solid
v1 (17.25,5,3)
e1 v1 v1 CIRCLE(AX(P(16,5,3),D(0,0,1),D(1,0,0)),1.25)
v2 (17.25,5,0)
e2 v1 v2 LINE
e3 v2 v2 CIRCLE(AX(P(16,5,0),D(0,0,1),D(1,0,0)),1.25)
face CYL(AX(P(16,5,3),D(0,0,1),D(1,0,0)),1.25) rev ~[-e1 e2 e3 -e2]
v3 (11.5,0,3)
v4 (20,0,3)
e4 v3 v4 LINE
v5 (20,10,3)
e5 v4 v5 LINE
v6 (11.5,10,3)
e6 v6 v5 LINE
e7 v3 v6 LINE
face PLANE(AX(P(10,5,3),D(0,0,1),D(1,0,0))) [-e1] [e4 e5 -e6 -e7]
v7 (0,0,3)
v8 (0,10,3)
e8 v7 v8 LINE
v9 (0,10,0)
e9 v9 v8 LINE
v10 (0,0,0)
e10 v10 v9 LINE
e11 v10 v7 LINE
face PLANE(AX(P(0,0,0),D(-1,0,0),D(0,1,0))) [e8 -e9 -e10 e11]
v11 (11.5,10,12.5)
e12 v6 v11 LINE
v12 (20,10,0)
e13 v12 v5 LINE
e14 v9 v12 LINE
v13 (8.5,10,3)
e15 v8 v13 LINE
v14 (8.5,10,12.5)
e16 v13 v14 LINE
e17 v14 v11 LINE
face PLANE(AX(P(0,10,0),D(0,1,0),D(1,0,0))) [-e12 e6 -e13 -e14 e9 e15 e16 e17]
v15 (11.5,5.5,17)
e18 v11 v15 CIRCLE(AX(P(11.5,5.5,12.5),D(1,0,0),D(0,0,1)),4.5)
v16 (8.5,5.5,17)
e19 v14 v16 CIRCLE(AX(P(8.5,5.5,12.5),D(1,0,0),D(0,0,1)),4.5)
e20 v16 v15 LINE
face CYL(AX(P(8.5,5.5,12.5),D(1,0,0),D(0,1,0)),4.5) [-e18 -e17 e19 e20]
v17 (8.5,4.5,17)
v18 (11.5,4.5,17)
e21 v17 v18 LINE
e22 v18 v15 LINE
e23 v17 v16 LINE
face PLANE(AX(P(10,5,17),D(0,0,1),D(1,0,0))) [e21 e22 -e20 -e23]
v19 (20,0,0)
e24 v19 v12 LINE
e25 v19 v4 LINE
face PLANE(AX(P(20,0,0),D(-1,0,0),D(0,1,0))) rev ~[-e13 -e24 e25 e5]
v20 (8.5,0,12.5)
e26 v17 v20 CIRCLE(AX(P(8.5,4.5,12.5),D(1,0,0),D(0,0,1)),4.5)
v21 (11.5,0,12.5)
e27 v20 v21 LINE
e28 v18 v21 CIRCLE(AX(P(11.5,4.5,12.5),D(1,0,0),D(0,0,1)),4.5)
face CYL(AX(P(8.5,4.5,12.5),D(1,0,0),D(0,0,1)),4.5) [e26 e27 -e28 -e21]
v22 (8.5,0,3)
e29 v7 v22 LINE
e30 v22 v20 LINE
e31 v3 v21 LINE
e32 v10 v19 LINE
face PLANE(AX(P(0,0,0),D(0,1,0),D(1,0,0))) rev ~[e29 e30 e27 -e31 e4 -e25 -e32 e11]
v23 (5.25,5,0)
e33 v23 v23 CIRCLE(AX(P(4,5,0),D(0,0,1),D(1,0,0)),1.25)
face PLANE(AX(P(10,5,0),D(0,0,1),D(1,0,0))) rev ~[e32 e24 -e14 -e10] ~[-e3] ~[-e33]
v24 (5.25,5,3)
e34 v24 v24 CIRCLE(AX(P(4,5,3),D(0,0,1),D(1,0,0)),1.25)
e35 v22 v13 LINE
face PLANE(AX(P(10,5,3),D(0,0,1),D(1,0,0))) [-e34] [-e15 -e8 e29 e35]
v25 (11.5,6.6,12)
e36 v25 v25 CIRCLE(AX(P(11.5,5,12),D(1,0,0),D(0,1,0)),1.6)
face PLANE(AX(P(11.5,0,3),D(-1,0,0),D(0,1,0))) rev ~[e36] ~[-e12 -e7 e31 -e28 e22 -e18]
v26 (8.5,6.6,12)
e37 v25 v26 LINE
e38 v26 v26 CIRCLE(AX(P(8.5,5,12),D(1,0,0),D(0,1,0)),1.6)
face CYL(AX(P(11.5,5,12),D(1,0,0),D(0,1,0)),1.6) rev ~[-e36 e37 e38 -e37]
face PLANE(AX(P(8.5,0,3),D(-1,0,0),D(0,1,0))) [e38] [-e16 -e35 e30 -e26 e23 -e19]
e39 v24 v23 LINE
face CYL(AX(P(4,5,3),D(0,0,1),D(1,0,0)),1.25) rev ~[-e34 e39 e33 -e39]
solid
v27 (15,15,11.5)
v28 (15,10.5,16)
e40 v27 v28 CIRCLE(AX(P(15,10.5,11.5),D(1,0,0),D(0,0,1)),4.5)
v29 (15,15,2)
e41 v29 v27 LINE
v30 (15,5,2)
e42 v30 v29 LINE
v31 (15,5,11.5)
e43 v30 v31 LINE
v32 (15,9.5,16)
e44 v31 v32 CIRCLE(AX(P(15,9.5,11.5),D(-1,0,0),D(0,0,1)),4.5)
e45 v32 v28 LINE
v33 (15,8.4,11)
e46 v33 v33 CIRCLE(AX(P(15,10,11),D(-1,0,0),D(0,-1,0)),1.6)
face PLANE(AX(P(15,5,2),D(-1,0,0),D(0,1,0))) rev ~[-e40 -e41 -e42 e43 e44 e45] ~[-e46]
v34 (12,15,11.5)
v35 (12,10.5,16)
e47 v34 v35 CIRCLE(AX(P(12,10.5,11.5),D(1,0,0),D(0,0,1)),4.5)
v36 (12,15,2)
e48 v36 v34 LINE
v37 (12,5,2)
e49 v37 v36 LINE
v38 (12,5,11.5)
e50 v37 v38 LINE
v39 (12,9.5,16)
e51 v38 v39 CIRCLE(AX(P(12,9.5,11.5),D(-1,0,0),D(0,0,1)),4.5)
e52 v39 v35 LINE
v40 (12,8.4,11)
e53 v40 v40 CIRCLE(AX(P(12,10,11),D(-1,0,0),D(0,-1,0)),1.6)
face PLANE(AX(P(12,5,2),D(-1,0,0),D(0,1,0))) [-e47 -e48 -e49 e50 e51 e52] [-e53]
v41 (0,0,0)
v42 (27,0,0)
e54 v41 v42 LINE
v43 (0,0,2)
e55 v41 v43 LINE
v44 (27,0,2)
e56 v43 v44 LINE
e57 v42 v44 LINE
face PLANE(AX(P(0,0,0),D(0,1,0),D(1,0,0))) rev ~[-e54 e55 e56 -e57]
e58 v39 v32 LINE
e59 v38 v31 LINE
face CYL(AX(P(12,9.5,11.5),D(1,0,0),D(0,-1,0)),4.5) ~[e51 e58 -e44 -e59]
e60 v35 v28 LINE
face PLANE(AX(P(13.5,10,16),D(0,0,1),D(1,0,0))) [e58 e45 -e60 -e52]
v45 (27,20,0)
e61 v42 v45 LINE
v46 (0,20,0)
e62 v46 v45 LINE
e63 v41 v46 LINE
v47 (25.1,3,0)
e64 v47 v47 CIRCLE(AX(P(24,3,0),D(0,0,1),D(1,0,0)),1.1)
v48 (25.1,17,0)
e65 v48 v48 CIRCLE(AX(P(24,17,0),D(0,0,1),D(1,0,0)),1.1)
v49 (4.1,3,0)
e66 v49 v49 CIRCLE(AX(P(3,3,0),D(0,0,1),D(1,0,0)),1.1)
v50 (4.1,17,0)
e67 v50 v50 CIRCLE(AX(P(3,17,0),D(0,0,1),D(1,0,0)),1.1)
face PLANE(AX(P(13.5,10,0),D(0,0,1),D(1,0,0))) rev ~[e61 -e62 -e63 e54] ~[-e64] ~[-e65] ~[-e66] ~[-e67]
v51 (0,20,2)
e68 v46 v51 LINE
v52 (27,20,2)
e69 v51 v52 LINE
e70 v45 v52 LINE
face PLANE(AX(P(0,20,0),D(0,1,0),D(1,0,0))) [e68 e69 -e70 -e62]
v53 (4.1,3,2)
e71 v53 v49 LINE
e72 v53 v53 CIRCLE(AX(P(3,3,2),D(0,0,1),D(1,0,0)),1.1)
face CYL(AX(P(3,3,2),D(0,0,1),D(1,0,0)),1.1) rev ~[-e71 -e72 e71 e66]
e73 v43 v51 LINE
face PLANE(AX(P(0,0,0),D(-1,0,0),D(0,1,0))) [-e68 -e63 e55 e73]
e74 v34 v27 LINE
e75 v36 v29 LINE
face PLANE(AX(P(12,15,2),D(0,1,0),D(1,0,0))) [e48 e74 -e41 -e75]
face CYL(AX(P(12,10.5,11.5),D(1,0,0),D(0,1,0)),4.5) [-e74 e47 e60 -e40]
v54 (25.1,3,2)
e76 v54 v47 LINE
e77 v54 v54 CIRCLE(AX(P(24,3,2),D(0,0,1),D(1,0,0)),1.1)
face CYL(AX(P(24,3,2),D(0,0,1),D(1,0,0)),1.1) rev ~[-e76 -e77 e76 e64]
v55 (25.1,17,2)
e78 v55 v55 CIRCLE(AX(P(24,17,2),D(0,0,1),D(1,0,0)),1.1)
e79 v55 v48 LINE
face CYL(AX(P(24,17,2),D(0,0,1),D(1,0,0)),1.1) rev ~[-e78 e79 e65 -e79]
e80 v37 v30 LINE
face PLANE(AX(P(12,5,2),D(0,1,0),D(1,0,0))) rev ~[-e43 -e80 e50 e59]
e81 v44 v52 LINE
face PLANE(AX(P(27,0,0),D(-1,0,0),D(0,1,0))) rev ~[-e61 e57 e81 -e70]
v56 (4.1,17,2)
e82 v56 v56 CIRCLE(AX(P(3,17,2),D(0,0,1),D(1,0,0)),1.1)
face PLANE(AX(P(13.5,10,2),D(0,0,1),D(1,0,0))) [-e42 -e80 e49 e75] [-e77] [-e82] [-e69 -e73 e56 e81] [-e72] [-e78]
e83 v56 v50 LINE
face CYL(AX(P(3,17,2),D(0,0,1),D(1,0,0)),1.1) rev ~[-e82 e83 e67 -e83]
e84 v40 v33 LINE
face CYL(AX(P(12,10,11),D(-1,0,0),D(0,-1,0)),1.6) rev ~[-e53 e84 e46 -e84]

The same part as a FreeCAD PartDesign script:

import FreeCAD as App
import Part
import Sketcher

V = App.Vector
Q = App.Units.Quantity


def edges_at(feature, points):
    """Names of the edges that pass closest to the given points."""
    edges = feature.Shape.Edges
    near = lambda p: min(range(len(edges)), key=lambda i: edges[i].distToShape(Part.Vertex(*p))[0])
    return sorted({f"Edge{near(p) + 1}" for p in points})

doc = App.newDocument("Part")
body = doc.addObject("PartDesign::Body", "Body")

sketch1 = body.newObject("Sketcher::SketchObject", "Sketch")
sketch1.AttachmentSupport = (doc.getObject("XY_Plane"), [""])
sketch1.MapMode = "FlatFace"
sketch1.addGeometry(Part.LineSegment(V(0, 10, 0), V(0, 0, 0)), False)
sketch1.addGeometry(Part.LineSegment(V(0, 0, 0), V(20, 0, 0)), False)
sketch1.addGeometry(Part.LineSegment(V(20, 0, 0), V(20, 10, 0)), False)
sketch1.addGeometry(Part.LineSegment(V(20, 10, 0), V(0, 10, 0)), False)
sketch1.addConstraint(Sketcher.Constraint("Coincident", 0, 2, 1, 1))
sketch1.addConstraint(Sketcher.Constraint("Coincident", 1, 2, 2, 1))
sketch1.addConstraint(Sketcher.Constraint("Coincident", 2, 2, 3, 1))
sketch1.addConstraint(Sketcher.Constraint("Coincident", 3, 2, 0, 1))
sketch1.addConstraint(Sketcher.Constraint("Vertical", 0))
sketch1.addConstraint(Sketcher.Constraint("Horizontal", 1))
sketch1.addConstraint(Sketcher.Constraint("Vertical", 2))
sketch1.addConstraint(Sketcher.Constraint("Horizontal", 3))
sketch1.addConstraint(Sketcher.Constraint("Coincident", 0, 2, -1, 1))
sketch1.addConstraint(Sketcher.Constraint("DistanceX", 1, 1, 1, 2, Q("20 mm")))
sketch1.addConstraint(Sketcher.Constraint("DistanceY", 0, 2, 0, 1, Q("10 mm")))
pad1 = body.newObject("PartDesign::Pad", "Pad")
pad1.Profile = sketch1
pad1.Length = 3

sketch2 = body.newObject("Sketcher::SketchObject", "Sketch001")
sketch2.AttachmentSupport = (doc.getObject("XY_Plane"), [""])
sketch2.MapMode = "FlatFace"
sketch2.AttachmentOffset = App.Placement(V(0, 0, 3), App.Rotation())
sketch2.addGeometry(Part.LineSegment(V(8.5, 10, 0), V(8.5, 0, 0)), False)
sketch2.addGeometry(Part.LineSegment(V(8.5, 0, 0), V(11.5, 0, 0)), False)
sketch2.addGeometry(Part.LineSegment(V(11.5, 0, 0), V(11.5, 10, 0)), False)
sketch2.addGeometry(Part.LineSegment(V(11.5, 10, 0), V(8.5, 10, 0)), False)
sketch2.addConstraint(Sketcher.Constraint("Coincident", 0, 2, 1, 1))
sketch2.addConstraint(Sketcher.Constraint("Coincident", 1, 2, 2, 1))
sketch2.addConstraint(Sketcher.Constraint("Coincident", 2, 2, 3, 1))
sketch2.addConstraint(Sketcher.Constraint("Coincident", 3, 2, 0, 1))
sketch2.addConstraint(Sketcher.Constraint("Vertical", 0))
sketch2.addConstraint(Sketcher.Constraint("Horizontal", 1))
sketch2.addConstraint(Sketcher.Constraint("Vertical", 2))
sketch2.addConstraint(Sketcher.Constraint("Horizontal", 3))
sketch2.addConstraint(Sketcher.Constraint("PointOnObject", 0, 2, -1))
sketch2.addConstraint(Sketcher.Constraint("DistanceX", 1, 1, 1, 2, Q("3 mm")))
sketch2.addConstraint(Sketcher.Constraint("DistanceY", 0, 2, 0, 1, Q("10 mm")))
sketch2.addConstraint(Sketcher.Constraint("DistanceX", -1, 1, 0, 2, Q("8.5 mm")))
pad2 = body.newObject("PartDesign::Pad", "Pad001")
pad2.Profile = sketch2
pad2.Length = 14

sketch3 = body.newObject("Sketcher::SketchObject", "Sketch002")
sketch3.AttachmentSupport = (doc.getObject("XY_Plane"), [""])
sketch3.MapMode = "FlatFace"
sketch3.AttachmentOffset = App.Placement(V(0, 0, 3), App.Rotation())
sketch3.addGeometry(Part.Circle(V(4, 5, 0), V(0, 0, 1), 1.25), False)
sketch3.addGeometry(Part.Circle(V(16, 5, 0), V(0, 0, 1), 1.25), False)
sketch3.addConstraint(Sketcher.Constraint("Equal", 0, 1))
sketch3.addConstraint(Sketcher.Constraint("Horizontal", 0, 3, 1, 3))
sketch3.addConstraint(Sketcher.Constraint("Diameter", 0, Q("2.5 mm")))
sketch3.addConstraint(Sketcher.Constraint("DistanceX", -1, 1, 0, 3, Q("4 mm")))
sketch3.addConstraint(Sketcher.Constraint("DistanceY", -1, 1, 0, 3, Q("5 mm")))
sketch3.addConstraint(Sketcher.Constraint("DistanceX", -1, 1, 1, 3, Q("16 mm")))
pocket1 = body.newObject("PartDesign::Pocket", "Pocket")
pocket1.Profile = sketch3
pocket1.Length = 3

sketch4 = body.newObject("Sketcher::SketchObject", "Sketch003")
sketch4.AttachmentSupport = (doc.getObject("YZ_Plane"), [""])
sketch4.MapMode = "FlatFace"
sketch4.AttachmentOffset = App.Placement(V(0, 0, 11.5), App.Rotation())
sketch4.addGeometry(Part.Circle(V(5, 12, 0), V(0, 0, 1), 1.6), False)
sketch4.addConstraint(Sketcher.Constraint("Diameter", 0, Q("3.2 mm")))
sketch4.addConstraint(Sketcher.Constraint("DistanceX", -1, 1, 0, 3, Q("5 mm")))
sketch4.addConstraint(Sketcher.Constraint("DistanceY", -1, 1, 0, 3, Q("12 mm")))
pocket2 = body.newObject("PartDesign::Pocket", "Pocket001")
pocket2.Profile = sketch4
pocket2.Length = 3
doc.recompute()

fillet = body.newObject("PartDesign::Fillet", "Fillet")
fillet.Base = (pocket2, edges_at(pocket2, [(10, 10, 17)]))
fillet.Radius = 4.5
doc.recompute()

fillet2 = body.newObject("PartDesign::Fillet", "Fillet001")
fillet2.Base = (fillet, edges_at(fillet, [(10, 0, 17)]))
fillet2.Radius = 4.5
body2 = doc.addObject("PartDesign::Body", "Body001")

sketch5 = body2.newObject("Sketcher::SketchObject", "Sketch004")
sketch5.AttachmentSupport = (doc.getObject("XY_Plane001"), [""])
sketch5.MapMode = "FlatFace"
sketch5.addGeometry(Part.LineSegment(V(0, 20, 0), V(0, 0, 0)), False)
sketch5.addGeometry(Part.LineSegment(V(0, 0, 0), V(27, 0, 0)), False)
sketch5.addGeometry(Part.LineSegment(V(27, 0, 0), V(27, 20, 0)), False)
sketch5.addGeometry(Part.LineSegment(V(27, 20, 0), V(0, 20, 0)), False)
sketch5.addConstraint(Sketcher.Constraint("Coincident", 0, 2, 1, 1))
sketch5.addConstraint(Sketcher.Constraint("Coincident", 1, 2, 2, 1))
sketch5.addConstraint(Sketcher.Constraint("Coincident", 2, 2, 3, 1))
sketch5.addConstraint(Sketcher.Constraint("Coincident", 3, 2, 0, 1))
sketch5.addConstraint(Sketcher.Constraint("Vertical", 0))
sketch5.addConstraint(Sketcher.Constraint("Horizontal", 1))
sketch5.addConstraint(Sketcher.Constraint("Vertical", 2))
sketch5.addConstraint(Sketcher.Constraint("Horizontal", 3))
sketch5.addConstraint(Sketcher.Constraint("Coincident", 0, 2, -1, 1))
sketch5.addConstraint(Sketcher.Constraint("DistanceX", 1, 1, 1, 2, Q("27 mm")))
sketch5.addConstraint(Sketcher.Constraint("DistanceY", 0, 2, 0, 1, Q("20 mm")))
pad3 = body2.newObject("PartDesign::Pad", "Pad002")
pad3.Profile = sketch5
pad3.Length = 2

sketch6 = body2.newObject("Sketcher::SketchObject", "Sketch005")
sketch6.AttachmentSupport = (doc.getObject("XY_Plane001"), [""])
sketch6.MapMode = "FlatFace"
sketch6.AttachmentOffset = App.Placement(V(0, 0, 2), App.Rotation())
sketch6.addGeometry(Part.LineSegment(V(12, 15, 0), V(12, 5, 0)), False)
sketch6.addGeometry(Part.LineSegment(V(12, 5, 0), V(15, 5, 0)), False)
sketch6.addGeometry(Part.LineSegment(V(15, 5, 0), V(15, 15, 0)), False)
sketch6.addGeometry(Part.LineSegment(V(15, 15, 0), V(12, 15, 0)), False)
sketch6.addConstraint(Sketcher.Constraint("Coincident", 0, 2, 1, 1))
sketch6.addConstraint(Sketcher.Constraint("Coincident", 1, 2, 2, 1))
sketch6.addConstraint(Sketcher.Constraint("Coincident", 2, 2, 3, 1))
sketch6.addConstraint(Sketcher.Constraint("Coincident", 3, 2, 0, 1))
sketch6.addConstraint(Sketcher.Constraint("Vertical", 0))
sketch6.addConstraint(Sketcher.Constraint("Horizontal", 1))
sketch6.addConstraint(Sketcher.Constraint("Vertical", 2))
sketch6.addConstraint(Sketcher.Constraint("Horizontal", 3))
sketch6.addConstraint(Sketcher.Constraint("DistanceX", 1, 1, 1, 2, Q("3 mm")))
sketch6.addConstraint(Sketcher.Constraint("DistanceY", 0, 2, 0, 1, Q("10 mm")))
sketch6.addConstraint(Sketcher.Constraint("DistanceX", -1, 1, 0, 2, Q("12 mm")))
sketch6.addConstraint(Sketcher.Constraint("DistanceY", -1, 1, 0, 2, Q("5 mm")))
pad4 = body2.newObject("PartDesign::Pad", "Pad003")
pad4.Profile = sketch6
pad4.Length = 14

sketch7 = body2.newObject("Sketcher::SketchObject", "Sketch006")
sketch7.AttachmentSupport = (doc.getObject("XY_Plane001"), [""])
sketch7.MapMode = "FlatFace"
sketch7.AttachmentOffset = App.Placement(V(0, 0, 2), App.Rotation())
sketch7.addGeometry(Part.Circle(V(3, 17, 0), V(0, 0, 1), 1.1), False)
sketch7.addGeometry(Part.Circle(V(24, 17, 0), V(0, 0, 1), 1.1), False)
sketch7.addGeometry(Part.Circle(V(3, 3, 0), V(0, 0, 1), 1.1), False)
sketch7.addGeometry(Part.Circle(V(24, 3, 0), V(0, 0, 1), 1.1), False)
sketch7.addConstraint(Sketcher.Constraint("Equal", 0, 1))
sketch7.addConstraint(Sketcher.Constraint("Equal", 1, 2))
sketch7.addConstraint(Sketcher.Constraint("Equal", 2, 3))
sketch7.addConstraint(Sketcher.Constraint("Horizontal", 0, 3, 1, 3))
sketch7.addConstraint(Sketcher.Constraint("Horizontal", 2, 3, 3, 3))
sketch7.addConstraint(Sketcher.Constraint("Vertical", 0, 3, 2, 3))
sketch7.addConstraint(Sketcher.Constraint("Vertical", 1, 3, 3, 3))
sketch7.addConstraint(Sketcher.Constraint("Diameter", 0, Q("2.2 mm")))
sketch7.addConstraint(Sketcher.Constraint("DistanceX", -1, 1, 0, 3, Q("3 mm")))
sketch7.addConstraint(Sketcher.Constraint("DistanceY", -1, 1, 0, 3, Q("17 mm")))
sketch7.addConstraint(Sketcher.Constraint("DistanceX", -1, 1, 1, 3, Q("24 mm")))
sketch7.addConstraint(Sketcher.Constraint("DistanceY", -1, 1, 2, 3, Q("3 mm")))
pocket3 = body2.newObject("PartDesign::Pocket", "Pocket002")
pocket3.Profile = sketch7
pocket3.Length = 3

sketch8 = body2.newObject("Sketcher::SketchObject", "Sketch007")
sketch8.AttachmentSupport = (doc.getObject("YZ_Plane001"), [""])
sketch8.MapMode = "FlatFace"
sketch8.AttachmentOffset = App.Placement(V(0, 0, 12), App.Rotation())
sketch8.addGeometry(Part.Circle(V(10, 11, 0), V(0, 0, 1), 1.6), False)
sketch8.addConstraint(Sketcher.Constraint("Diameter", 0, Q("3.2 mm")))
sketch8.addConstraint(Sketcher.Constraint("DistanceX", -1, 1, 0, 3, Q("10 mm")))
sketch8.addConstraint(Sketcher.Constraint("DistanceY", -1, 1, 0, 3, Q("11 mm")))
pocket4 = body2.newObject("PartDesign::Pocket", "Pocket003")
pocket4.Profile = sketch8
pocket4.Length = 3
pocket4.Reversed = True

sketch9 = body2.newObject("Sketcher::SketchObject", "Sketch008")
sketch9.AttachmentSupport = (doc.getObject("XY_Plane001"), [""])
sketch9.MapMode = "FlatFace"
sketch9.AttachmentOffset = App.Placement(V(0, 0, 2), App.Rotation())
sketch9.addGeometry(Part.Circle(V(3, 17, 0), V(0, 0, 1), 1.1), False)
sketch9.addGeometry(Part.Circle(V(24, 17, 0), V(0, 0, 1), 1.1), False)
sketch9.addGeometry(Part.Circle(V(3, 3, 0), V(0, 0, 1), 1.1), False)
sketch9.addGeometry(Part.Circle(V(24, 3, 0), V(0, 0, 1), 1.1), False)
sketch9.addConstraint(Sketcher.Constraint("Equal", 0, 1))
sketch9.addConstraint(Sketcher.Constraint("Equal", 1, 2))
sketch9.addConstraint(Sketcher.Constraint("Equal", 2, 3))
sketch9.addConstraint(Sketcher.Constraint("Horizontal", 0, 3, 1, 3))
sketch9.addConstraint(Sketcher.Constraint("Horizontal", 2, 3, 3, 3))
sketch9.addConstraint(Sketcher.Constraint("Vertical", 0, 3, 2, 3))
sketch9.addConstraint(Sketcher.Constraint("Vertical", 1, 3, 3, 3))
sketch9.addConstraint(Sketcher.Constraint("Diameter", 0, Q("2.2 mm")))
sketch9.addConstraint(Sketcher.Constraint("DistanceX", -1, 1, 0, 3, Q("3 mm")))
sketch9.addConstraint(Sketcher.Constraint("DistanceY", -1, 1, 0, 3, Q("17 mm")))
sketch9.addConstraint(Sketcher.Constraint("DistanceX", -1, 1, 1, 3, Q("24 mm")))
sketch9.addConstraint(Sketcher.Constraint("DistanceY", -1, 1, 2, 3, Q("3 mm")))
pocket5 = body2.newObject("PartDesign::Pocket", "Pocket004")
pocket5.Profile = sketch9
pocket5.Length = 3
doc.recompute()

fillet3 = body2.newObject("PartDesign::Fillet", "Fillet002")
fillet3.Base = (pocket5, edges_at(pocket5, [(13.5, 15, 16), (13.5, 5, 16)]))
fillet3.Radius = 4.5

doc.recompute()
